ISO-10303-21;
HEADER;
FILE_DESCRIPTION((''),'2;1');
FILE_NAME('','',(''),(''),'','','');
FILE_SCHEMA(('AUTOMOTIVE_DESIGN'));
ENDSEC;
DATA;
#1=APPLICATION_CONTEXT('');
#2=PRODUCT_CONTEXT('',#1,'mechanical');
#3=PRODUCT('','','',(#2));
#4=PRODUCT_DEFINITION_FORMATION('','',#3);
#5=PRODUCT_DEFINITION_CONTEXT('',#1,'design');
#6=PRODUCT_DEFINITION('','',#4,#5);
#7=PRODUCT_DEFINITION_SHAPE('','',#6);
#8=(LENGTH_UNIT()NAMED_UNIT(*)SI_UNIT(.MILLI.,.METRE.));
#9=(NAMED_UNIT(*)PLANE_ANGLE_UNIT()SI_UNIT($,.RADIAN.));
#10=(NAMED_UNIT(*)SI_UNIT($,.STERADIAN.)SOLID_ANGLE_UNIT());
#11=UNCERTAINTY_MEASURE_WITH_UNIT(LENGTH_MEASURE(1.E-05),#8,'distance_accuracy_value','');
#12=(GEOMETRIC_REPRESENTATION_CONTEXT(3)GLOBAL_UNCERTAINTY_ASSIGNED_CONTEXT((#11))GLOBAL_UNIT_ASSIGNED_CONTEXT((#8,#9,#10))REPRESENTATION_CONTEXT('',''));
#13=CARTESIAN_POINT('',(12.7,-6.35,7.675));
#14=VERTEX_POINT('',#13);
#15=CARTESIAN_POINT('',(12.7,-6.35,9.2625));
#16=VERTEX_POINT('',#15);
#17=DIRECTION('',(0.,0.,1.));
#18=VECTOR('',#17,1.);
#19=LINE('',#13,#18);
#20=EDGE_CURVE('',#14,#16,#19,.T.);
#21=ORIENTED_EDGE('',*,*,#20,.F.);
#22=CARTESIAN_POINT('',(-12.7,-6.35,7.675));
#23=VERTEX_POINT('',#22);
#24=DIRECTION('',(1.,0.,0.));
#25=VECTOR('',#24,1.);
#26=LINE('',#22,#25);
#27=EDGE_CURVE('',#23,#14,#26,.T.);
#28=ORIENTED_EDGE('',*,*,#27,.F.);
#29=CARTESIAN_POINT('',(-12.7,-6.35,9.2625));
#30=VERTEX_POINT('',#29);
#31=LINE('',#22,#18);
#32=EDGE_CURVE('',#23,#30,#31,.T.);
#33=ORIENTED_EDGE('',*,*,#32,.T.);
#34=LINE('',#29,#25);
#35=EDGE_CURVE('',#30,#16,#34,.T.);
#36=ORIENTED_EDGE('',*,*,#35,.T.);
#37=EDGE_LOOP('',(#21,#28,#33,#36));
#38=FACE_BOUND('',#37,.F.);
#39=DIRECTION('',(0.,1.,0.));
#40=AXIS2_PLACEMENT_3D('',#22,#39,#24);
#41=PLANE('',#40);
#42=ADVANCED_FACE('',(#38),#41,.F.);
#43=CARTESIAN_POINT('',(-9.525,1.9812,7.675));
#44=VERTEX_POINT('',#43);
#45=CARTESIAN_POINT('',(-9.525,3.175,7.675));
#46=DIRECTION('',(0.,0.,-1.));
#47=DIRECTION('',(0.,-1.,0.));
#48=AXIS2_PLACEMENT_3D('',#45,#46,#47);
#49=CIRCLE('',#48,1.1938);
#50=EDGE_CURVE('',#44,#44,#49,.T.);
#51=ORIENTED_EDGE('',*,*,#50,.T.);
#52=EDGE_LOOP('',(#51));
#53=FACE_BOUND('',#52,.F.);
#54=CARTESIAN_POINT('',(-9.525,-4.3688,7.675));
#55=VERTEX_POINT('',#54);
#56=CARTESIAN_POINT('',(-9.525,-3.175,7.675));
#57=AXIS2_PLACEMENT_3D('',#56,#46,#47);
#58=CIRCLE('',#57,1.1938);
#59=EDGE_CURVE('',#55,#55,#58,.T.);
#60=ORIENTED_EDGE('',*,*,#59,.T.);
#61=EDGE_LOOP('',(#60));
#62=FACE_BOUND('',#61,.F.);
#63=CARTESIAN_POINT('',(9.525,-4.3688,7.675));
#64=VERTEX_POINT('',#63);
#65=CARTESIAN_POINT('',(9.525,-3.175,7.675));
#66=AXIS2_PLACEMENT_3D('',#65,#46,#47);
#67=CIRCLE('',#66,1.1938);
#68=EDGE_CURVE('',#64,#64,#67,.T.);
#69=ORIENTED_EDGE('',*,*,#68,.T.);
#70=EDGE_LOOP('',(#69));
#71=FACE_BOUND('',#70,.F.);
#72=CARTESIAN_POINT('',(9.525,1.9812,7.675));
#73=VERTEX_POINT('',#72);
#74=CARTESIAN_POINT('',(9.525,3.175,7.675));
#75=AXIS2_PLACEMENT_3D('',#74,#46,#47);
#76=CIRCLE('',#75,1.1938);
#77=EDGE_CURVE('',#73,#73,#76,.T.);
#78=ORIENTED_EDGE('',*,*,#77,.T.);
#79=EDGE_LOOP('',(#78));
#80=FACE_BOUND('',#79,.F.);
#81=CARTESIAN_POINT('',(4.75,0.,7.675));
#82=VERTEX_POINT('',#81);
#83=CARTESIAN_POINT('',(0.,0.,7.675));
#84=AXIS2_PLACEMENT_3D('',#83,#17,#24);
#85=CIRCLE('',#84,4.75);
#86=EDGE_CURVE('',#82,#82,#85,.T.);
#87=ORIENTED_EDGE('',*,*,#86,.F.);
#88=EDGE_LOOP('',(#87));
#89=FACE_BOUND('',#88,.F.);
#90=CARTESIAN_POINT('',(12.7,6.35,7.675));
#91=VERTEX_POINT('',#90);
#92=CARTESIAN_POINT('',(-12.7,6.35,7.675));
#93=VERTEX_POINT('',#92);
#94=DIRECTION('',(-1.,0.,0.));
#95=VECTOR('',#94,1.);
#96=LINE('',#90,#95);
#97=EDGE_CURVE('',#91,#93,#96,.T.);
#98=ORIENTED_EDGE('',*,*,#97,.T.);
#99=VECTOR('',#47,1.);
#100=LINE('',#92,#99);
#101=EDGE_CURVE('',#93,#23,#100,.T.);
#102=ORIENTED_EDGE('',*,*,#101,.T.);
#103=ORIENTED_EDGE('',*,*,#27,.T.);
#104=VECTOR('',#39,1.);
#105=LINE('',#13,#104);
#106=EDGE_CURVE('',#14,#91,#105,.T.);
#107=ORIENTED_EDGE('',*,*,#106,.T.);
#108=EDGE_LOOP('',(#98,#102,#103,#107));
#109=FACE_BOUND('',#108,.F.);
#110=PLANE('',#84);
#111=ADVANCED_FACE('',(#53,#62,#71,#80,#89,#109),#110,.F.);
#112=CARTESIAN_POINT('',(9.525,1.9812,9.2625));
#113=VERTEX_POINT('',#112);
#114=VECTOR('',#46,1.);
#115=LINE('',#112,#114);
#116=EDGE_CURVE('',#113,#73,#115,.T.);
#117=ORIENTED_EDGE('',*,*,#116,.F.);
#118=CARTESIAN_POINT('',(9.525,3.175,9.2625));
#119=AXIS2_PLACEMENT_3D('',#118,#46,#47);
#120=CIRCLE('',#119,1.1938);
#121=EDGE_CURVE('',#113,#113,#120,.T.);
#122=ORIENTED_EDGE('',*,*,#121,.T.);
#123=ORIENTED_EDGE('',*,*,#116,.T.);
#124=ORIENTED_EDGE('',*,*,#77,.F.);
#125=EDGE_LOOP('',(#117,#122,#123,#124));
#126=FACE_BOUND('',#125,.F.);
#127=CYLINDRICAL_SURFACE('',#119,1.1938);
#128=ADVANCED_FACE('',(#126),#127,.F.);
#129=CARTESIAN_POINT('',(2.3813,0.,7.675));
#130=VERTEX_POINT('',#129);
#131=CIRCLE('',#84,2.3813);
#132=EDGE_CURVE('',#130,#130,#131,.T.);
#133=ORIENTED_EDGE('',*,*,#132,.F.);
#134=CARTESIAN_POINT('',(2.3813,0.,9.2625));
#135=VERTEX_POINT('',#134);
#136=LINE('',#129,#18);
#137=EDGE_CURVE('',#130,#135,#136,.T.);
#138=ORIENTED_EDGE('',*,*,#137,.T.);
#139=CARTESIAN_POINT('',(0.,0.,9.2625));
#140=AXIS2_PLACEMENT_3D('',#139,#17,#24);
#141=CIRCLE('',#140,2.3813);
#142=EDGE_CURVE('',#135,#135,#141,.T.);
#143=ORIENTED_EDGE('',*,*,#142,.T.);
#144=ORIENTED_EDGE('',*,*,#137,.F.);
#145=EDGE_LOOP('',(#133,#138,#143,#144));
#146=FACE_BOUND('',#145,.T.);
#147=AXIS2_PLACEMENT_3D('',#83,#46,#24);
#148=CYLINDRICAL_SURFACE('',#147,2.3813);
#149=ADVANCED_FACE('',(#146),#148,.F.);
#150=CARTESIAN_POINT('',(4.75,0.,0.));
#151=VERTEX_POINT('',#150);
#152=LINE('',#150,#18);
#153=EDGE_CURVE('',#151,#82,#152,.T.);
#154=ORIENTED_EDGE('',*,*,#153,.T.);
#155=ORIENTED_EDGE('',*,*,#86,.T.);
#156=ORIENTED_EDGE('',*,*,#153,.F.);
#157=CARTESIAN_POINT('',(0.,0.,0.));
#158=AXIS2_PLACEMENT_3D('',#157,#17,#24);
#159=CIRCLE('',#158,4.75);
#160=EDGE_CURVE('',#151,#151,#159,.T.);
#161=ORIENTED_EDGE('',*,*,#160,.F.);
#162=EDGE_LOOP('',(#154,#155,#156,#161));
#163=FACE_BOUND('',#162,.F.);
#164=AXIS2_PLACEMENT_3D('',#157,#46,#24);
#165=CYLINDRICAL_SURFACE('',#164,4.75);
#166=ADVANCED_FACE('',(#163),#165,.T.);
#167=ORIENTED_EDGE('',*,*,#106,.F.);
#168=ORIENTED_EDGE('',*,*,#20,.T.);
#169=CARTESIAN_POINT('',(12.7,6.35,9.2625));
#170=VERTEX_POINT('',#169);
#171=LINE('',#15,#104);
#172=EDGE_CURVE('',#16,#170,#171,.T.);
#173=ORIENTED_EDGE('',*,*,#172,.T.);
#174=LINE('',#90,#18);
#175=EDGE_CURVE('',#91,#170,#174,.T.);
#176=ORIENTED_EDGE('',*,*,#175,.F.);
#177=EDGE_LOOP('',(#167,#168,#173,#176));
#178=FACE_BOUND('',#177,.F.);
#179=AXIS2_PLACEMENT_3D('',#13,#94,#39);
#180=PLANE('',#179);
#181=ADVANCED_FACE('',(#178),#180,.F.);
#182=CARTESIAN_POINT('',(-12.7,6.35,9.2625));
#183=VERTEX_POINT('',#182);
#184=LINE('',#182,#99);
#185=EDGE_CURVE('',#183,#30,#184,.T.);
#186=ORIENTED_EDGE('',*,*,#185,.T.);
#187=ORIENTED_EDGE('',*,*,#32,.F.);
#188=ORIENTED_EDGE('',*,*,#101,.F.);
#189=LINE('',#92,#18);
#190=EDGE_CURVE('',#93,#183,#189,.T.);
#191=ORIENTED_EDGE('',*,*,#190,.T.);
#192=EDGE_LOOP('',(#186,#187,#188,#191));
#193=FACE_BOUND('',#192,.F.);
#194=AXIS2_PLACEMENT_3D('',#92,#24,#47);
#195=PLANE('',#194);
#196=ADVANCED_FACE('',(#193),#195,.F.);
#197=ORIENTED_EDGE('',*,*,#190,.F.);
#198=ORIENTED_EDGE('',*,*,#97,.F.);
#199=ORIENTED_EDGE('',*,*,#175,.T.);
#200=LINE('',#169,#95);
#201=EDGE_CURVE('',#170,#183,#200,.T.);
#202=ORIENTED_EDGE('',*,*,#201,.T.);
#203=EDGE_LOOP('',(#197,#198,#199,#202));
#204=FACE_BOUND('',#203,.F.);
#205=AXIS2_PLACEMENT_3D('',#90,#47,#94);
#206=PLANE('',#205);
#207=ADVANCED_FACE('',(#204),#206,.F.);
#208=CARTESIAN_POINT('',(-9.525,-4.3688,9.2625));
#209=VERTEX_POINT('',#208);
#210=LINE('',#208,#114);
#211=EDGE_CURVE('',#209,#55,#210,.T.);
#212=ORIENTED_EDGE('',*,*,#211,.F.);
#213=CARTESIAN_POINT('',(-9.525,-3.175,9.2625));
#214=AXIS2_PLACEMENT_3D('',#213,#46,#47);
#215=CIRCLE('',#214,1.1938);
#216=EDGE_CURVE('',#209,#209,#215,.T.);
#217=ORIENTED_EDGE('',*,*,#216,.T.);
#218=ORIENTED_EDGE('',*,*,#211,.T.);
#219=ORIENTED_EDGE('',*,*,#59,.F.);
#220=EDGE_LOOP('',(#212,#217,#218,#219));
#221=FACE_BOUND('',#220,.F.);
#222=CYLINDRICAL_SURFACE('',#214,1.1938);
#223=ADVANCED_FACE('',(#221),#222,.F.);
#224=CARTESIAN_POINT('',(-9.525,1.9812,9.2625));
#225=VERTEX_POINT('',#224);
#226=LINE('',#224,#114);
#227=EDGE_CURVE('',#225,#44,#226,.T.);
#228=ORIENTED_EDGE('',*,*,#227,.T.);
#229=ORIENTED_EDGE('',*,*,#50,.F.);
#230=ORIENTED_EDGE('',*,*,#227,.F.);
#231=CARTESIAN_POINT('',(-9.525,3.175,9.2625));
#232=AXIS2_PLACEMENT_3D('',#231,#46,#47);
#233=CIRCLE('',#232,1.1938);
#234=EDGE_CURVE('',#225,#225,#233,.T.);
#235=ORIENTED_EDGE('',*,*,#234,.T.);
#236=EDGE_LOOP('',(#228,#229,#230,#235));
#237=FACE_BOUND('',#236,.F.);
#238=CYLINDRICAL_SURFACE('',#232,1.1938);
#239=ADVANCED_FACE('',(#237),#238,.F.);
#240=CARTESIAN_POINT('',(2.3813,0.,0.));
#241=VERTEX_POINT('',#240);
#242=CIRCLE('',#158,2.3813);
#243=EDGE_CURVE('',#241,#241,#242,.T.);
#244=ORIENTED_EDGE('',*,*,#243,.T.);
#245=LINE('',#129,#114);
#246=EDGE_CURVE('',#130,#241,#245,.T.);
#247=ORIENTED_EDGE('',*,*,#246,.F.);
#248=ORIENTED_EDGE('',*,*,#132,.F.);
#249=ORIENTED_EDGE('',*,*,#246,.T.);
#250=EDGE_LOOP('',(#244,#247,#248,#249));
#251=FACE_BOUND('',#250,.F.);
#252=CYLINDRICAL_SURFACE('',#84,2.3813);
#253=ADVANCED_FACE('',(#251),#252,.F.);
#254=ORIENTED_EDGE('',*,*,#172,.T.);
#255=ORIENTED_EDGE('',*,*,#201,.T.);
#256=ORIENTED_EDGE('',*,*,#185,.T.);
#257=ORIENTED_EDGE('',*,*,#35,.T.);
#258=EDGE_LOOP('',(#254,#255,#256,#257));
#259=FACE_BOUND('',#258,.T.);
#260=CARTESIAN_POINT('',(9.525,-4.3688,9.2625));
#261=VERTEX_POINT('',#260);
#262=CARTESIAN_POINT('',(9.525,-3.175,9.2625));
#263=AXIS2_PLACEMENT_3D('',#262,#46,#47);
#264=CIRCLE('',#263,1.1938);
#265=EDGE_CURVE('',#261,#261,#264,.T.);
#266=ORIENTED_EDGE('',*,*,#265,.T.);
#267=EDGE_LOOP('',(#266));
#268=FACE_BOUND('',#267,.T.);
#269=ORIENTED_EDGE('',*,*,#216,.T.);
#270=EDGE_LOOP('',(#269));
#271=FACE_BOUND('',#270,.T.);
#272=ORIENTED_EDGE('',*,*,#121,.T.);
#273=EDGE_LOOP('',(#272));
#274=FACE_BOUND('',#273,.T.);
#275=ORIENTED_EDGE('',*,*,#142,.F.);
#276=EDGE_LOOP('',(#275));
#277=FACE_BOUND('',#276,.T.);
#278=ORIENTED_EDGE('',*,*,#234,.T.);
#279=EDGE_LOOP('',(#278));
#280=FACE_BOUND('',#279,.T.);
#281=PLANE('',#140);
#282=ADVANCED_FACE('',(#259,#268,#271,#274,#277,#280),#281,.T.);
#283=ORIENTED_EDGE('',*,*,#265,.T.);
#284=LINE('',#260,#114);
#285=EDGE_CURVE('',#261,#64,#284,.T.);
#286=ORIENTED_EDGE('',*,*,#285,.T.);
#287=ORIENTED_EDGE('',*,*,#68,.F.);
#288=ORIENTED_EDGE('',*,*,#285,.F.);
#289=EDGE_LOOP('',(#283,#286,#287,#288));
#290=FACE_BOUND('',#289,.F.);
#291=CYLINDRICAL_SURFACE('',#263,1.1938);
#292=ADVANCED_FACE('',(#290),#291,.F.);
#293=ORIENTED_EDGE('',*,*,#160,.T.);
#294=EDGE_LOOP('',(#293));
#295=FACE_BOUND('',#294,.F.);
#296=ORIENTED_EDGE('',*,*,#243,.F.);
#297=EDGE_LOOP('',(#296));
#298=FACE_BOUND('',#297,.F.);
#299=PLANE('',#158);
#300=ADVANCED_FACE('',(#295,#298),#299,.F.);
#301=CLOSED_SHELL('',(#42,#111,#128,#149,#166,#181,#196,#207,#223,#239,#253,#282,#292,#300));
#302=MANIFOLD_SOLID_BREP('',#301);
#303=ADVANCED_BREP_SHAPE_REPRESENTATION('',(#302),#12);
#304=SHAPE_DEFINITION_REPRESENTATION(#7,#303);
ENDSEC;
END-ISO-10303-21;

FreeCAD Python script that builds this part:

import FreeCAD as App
import Part
import Sketcher
from FreeCAD import Vector
Q = App.Units.Quantity


def add_polygon(sketch, points):
    """Adds a closed chain of lines whose ends are joined by coincident constraints."""
    first, n = sketch.GeometryCount, len(points)
    for a, b in zip(points, points[1:] + points[:1]):
        sketch.addGeometry(Part.LineSegment(App.Vector(*a, 0), App.Vector(*b, 0)), False)
    for i in range(n):
        sketch.addConstraint(Sketcher.Constraint("Coincident", first + i, 2, first + (i + 1) % n, 1))

doc = App.newDocument("Part")
body = doc.addObject("PartDesign::Body", "Body")

# Sketch on XY plane
sketch1 = body.newObject("Sketcher::SketchObject", "Sketch")
sketch1.AttachmentSupport = (doc.getObject("XY_Plane"), [""])
sketch1.MapMode = "FlatFace"
sketch1.addGeometry(Part.Circle(Vector(0, 0, 0), Vector(0, 0, 1), 4.8), False)
sketch1.addConstraint([
    Sketcher.Constraint("Coincident", 0, 3, -1, 1),
    Sketcher.Constraint("Diameter", 0, 9.5),
])
pad1 = body.newObject("PartDesign::Pad", "Pad")
pad1.Profile = sketch1
pad1.Length = 7.675

# Sketch on XY plane
sketch2 = body.newObject("Sketcher::SketchObject", "Sketch001")
sketch2.AttachmentSupport = (doc.getObject("XY_Plane"), [""])
sketch2.MapMode = "FlatFace"
sketch2.AttachmentOffset = App.Placement(Vector(0, 0, 7.675), App.Rotation())
sketch2.addGeometry(Part.Circle(Vector(0, 0, 0), Vector(0, 0, 1), 2.4), False)
sketch2.addConstraint([
    Sketcher.Constraint("Coincident", 0, 3, -1, 1),
    Sketcher.Constraint("Diameter", 0, Q("0.1875 in")),
])
pocket1 = body.newObject("PartDesign::Pocket", "Pocket")
pocket1.Profile = sketch2
pocket1.Type = "ThroughAll"

# Sketch on XY plane
sketch3 = body.newObject("Sketcher::SketchObject", "Sketch002")
sketch3.AttachmentSupport = (doc.getObject("XY_Plane"), [""])
sketch3.MapMode = "FlatFace"
sketch3.AttachmentOffset = App.Placement(Vector(0, 0, 7.675), App.Rotation())
add_polygon(sketch3, [(-12.7, 6.3), (-12.7, -6.3), (12.7, -6.3), (12.7, 6.3)])  # lines 0-3
sketch3.addGeometry(Part.Circle(Vector(0, 0, 0), Vector(0, 0, 1), 2.4), False)  # 4
sketch3.addConstraint([
    Sketcher.Constraint("Vertical", 0),
    Sketcher.Constraint("Horizontal", 1),
    Sketcher.Constraint("Vertical", 2),
    Sketcher.Constraint("Horizontal", 3),
    Sketcher.Constraint("Coincident", 4, 3, -1, 1),
    Sketcher.Constraint("Symmetric", 0, 2, 2, 2, -1, 1),
    Sketcher.Constraint("DistanceX", 1, 1, 1, 2, Q("1 in")),
    Sketcher.Constraint("DistanceY", 0, 2, 0, 1, Q("0.5 in")),
    Sketcher.Constraint("Diameter", 4, Q("0.1875 in")),
])
pad2 = body.newObject("PartDesign::Pad", "Pad001")
pad2.Profile = sketch3
pad2.Length = Q("0.0625 in")

# Sketch on XY plane
sketch4 = body.newObject("Sketcher::SketchObject", "Sketch003")
sketch4.AttachmentSupport = (doc.getObject("XY_Plane"), [""])
sketch4.MapMode = "FlatFace"
sketch4.AttachmentOffset = App.Placement(Vector(0, 0, 9.2625), App.Rotation())
sketch4.addGeometry([
    Part.Circle(Vector(-9.5, -3.2, 0), Vector(0, 0, 1), 1.2),
    Part.Circle(Vector(-9.5, 3.2, 0), Vector(0, 0, 1), 1.2),
    Part.Circle(Vector(9.5, 3.2, 0), Vector(0, 0, 1), 1.2),
    Part.Circle(Vector(9.5, -3.2, 0), Vector(0, 0, 1), 1.2),
], False)
sketch4.addConstraint([
    Sketcher.Constraint("Equal", 0, 1),
    Sketcher.Constraint("Equal", 1, 2),
    Sketcher.Constraint("Equal", 2, 3),
    Sketcher.Constraint("Symmetric", 0, 3, 2, 3, -1, 1),
    Sketcher.Constraint("Symmetric", 1, 3, 3, 3, -1, 1),
    Sketcher.Constraint("Symmetric", 1, 3, 2, 3, -2),
    Sketcher.Constraint("Diameter", 0, Q("0.094 in")),
    Sketcher.Constraint("DistanceY", 0, 3, 1, 3, Q("0.25 in")),
    Sketcher.Constraint("DistanceX", 1, 3, 2, 3, Q("0.75 in")),
])
doc.recompute()
hole = body.newObject("PartDesign::Hole", "Hole")
hole.Profile = sketch4
hole.ThreadType = "None"
hole.Diameter = Q("0.094 in")
hole.DepthType = "ThroughAll"

doc.recompute()
